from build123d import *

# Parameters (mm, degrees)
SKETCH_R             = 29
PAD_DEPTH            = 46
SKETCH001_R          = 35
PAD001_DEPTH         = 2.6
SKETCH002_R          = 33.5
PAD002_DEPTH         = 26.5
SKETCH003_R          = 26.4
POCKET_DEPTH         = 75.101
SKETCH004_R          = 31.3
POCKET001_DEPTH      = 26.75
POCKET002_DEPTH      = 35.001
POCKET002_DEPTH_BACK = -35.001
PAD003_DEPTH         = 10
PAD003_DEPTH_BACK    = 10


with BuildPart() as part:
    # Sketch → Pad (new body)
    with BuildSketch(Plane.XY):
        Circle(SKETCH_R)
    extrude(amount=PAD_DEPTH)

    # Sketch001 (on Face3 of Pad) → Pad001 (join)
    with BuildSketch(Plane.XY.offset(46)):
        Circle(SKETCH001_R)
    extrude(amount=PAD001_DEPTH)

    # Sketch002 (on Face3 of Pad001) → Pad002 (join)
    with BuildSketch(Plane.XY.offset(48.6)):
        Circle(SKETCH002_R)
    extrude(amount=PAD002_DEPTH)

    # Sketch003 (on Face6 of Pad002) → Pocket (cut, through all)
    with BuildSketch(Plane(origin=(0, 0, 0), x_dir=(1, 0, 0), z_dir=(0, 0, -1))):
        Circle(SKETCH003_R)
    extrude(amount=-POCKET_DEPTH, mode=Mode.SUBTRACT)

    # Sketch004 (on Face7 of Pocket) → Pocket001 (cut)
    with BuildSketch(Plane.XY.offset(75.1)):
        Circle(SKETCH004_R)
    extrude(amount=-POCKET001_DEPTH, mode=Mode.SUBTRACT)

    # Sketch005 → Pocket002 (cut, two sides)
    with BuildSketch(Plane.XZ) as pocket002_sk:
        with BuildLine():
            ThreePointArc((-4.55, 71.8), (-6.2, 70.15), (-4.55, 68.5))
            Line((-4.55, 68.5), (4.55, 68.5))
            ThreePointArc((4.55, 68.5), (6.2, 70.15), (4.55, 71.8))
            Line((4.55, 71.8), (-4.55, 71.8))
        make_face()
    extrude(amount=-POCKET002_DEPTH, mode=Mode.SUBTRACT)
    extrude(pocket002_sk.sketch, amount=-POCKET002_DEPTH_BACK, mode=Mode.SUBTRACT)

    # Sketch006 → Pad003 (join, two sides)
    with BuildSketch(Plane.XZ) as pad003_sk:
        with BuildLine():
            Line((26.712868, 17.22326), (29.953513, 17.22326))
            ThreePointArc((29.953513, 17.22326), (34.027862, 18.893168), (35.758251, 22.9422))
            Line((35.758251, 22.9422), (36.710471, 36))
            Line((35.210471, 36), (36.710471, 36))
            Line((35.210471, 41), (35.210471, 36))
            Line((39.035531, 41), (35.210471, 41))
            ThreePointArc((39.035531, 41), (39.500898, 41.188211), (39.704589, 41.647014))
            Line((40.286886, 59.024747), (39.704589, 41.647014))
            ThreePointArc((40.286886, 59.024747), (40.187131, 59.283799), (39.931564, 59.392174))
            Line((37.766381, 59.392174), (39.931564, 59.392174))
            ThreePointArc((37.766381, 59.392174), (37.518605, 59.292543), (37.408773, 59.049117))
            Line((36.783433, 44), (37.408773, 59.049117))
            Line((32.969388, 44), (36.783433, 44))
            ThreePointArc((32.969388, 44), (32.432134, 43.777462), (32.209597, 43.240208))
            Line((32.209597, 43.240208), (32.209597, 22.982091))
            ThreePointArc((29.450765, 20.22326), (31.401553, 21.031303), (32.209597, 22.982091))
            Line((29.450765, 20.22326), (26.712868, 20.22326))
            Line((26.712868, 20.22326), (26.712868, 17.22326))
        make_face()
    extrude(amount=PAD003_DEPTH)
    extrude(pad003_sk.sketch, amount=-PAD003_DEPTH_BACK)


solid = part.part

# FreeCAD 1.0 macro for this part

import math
import FreeCAD as App
import Part
import Sketcher
from FreeCAD import Vector

doc = App.newDocument("Part")
body = doc.addObject("PartDesign::Body", "Body")

sketch1 = body.newObject("Sketcher::SketchObject", "Sketch")
sketch1.AttachmentSupport = (doc.getObject("XY_Plane"), [""])
sketch1.MapMode = "FlatFace"
sketch1.addGeometry(Part.Circle(Vector(0, 0, 0), Vector(0, 0, 1), 29), False)
sketch1.addConstraint([
    Sketcher.Constraint("Coincident", 0, 3, -1, 1),
    Sketcher.Constraint("Diameter", 0, 58.0),
])
pad1 = body.newObject("PartDesign::Pad", "Pad")
pad1.Profile = sketch1
pad1.Length = 46

sketch2 = body.newObject("Sketcher::SketchObject", "Sketch001")
sketch2.AttachmentSupport = (doc.getObject("XY_Plane"), [""])
sketch2.MapMode = "FlatFace"
sketch2.AttachmentOffset = App.Placement(Vector(0, 0, 46), App.Rotation())
sketch2.addGeometry(Part.Circle(Vector(0, 0, 0), Vector(0, 0, 1), 35), False)
sketch2.addConstraint([
    Sketcher.Constraint("Coincident", 0, 3, -1, 1),
    Sketcher.Constraint("Diameter", 0, 70.0),
])
pad2 = body.newObject("PartDesign::Pad", "Pad001")
pad2.Profile = sketch2
pad2.Length = 2.6

sketch3 = body.newObject("Sketcher::SketchObject", "Sketch002")
sketch3.AttachmentSupport = (doc.getObject("XY_Plane"), [""])
sketch3.MapMode = "FlatFace"
sketch3.AttachmentOffset = App.Placement(Vector(0, 0, 48.6), App.Rotation())
sketch3.addGeometry(Part.Circle(Vector(0, 0, 0), Vector(0, 0, 1), 33.5), False)
sketch3.addConstraint([
    Sketcher.Constraint("Coincident", 0, 3, -1, 1),
    Sketcher.Constraint("Diameter", 0, 67.0),
])
pad3 = body.newObject("PartDesign::Pad", "Pad002")
pad3.Profile = sketch3
pad3.Length = 26.5

sketch4 = body.newObject("Sketcher::SketchObject", "Sketch003")
sketch4.AttachmentSupport = (doc.getObject("XY_Plane"), [""])
sketch4.MapMode = "FlatFace"
sketch4.addGeometry(Part.Circle(Vector(0, 0, 0), Vector(0, 0, 1), 26.4), False)
sketch4.addConstraint([
    Sketcher.Constraint("Coincident", 0, 3, -1, 1),
    Sketcher.Constraint("Diameter", 0, 52.8),
])
pocket1 = body.newObject("PartDesign::Pocket", "Pocket")
pocket1.Profile = sketch4
pocket1.Type = "ThroughAll"
pocket1.Reversed = True

sketch5 = body.newObject("Sketcher::SketchObject", "Sketch004")
sketch5.AttachmentSupport = (doc.getObject("XY_Plane"), [""])
sketch5.MapMode = "FlatFace"
sketch5.AttachmentOffset = App.Placement(Vector(0, 0, 75.1), App.Rotation())
sketch5.addGeometry(Part.Circle(Vector(0, 0, 0), Vector(0, 0, 1), 31.3), False)
sketch5.addConstraint([
    Sketcher.Constraint("Coincident", 0, 3, -1, 1),
    Sketcher.Constraint("Diameter", 0, 62.6),
])
pocket2 = body.newObject("PartDesign::Pocket", "Pocket001")
pocket2.Profile = sketch5
pocket2.Length = 26.75

sketch6 = body.newObject("Sketcher::SketchObject", "Sketch005")
sketch6.AttachmentSupport = (doc.getObject("XZ_Plane"), [""])
sketch6.MapMode = "FlatFace"
sketch6.addGeometry([
    Part.ArcOfCircle(Part.Circle(Vector(-4.55, 70.15, 0), Vector(0, 0, 1), 1.65), math.radians(90), math.radians(270)),
    Part.LineSegment(Vector(-4.55, 68.5, 0), Vector(4.55, 68.5, 0)),
    Part.ArcOfCircle(Part.Circle(Vector(4.55, 70.15, 0), Vector(0, 0, 1), 1.65), math.radians(-90), math.radians(90)),
    Part.LineSegment(Vector(4.55, 71.8, 0), Vector(-4.55, 71.8, 0)),
], False)
sketch6.addConstraint([
    Sketcher.Constraint("Tangent", 0, 2, 1, 1),
    Sketcher.Constraint("Tangent", 1, 2, 2, 1),
    Sketcher.Constraint("Tangent", 2, 2, 3, 1),
    Sketcher.Constraint("Tangent", 3, 2, 0, 1),
    Sketcher.Constraint("Horizontal", 1),
    Sketcher.Constraint("Horizontal", 3),
    Sketcher.Constraint("Radius", 0, 1.65),
    Sketcher.Constraint("DistanceX", 1, 1, 1, 2, 9.1),
    Sketcher.Constraint("DistanceY", -1, 1, 0, 2, 68.5),
    Sketcher.Constraint("DistanceX", 0, 3, -1, 1, 4.55),
])
pocket3 = body.newObject("PartDesign::Pocket", "Pocket002")
pocket3.Profile = sketch6
pocket3.Type = "ThroughAll"
pocket3.Midplane = True

sketch7 = body.newObject("Sketcher::SketchObject", "Sketch006")
sketch7.AttachmentSupport = (doc.getObject("XZ_Plane"), [""])
sketch7.MapMode = "FlatFace"
sketch7.addGeometry([
    Part.LineSegment(Vector(26.712868, 17.22326, 0), Vector(29.953513, 17.22326, 0)),
    Part.ArcOfCircle(Part.Circle(Vector(29.953514, 23.02864, 0), Vector(0, 0, 1), 5.80538), math.radians(-90.000013), math.radians(-0.853148)),
    Part.LineSegment(Vector(35.758251, 22.9422, 0), Vector(36.710471, 36, 0)),
    Part.LineSegment(Vector(36.710471, 36, 0), Vector(35.210471, 36, 0)),
    Part.LineSegment(Vector(35.210471, 36, 0), Vector(35.210471, 41, 0)),
    Part.LineSegment(Vector(35.210471, 41, 0), Vector(39.035531, 41, 0)),
    Part.ArcOfCircle(Part.Circle(Vector(39.035532, 41.669433, 0), Vector(0, 0, 1), 0.669433), math.radians(-90.00005), math.radians(-1.919161)),
    Part.LineSegment(Vector(39.704589, 41.647014, 0), Vector(40.286886, 59.024747, 0)),
    Part.ArcOfCircle(Part.Circle(Vector(39.931565, 59.036654, 0), Vector(0, 0, 1), 0.35552), math.radians(-1.91926), math.radians(90.000197)),
    Part.LineSegment(Vector(39.931564, 59.392174, 0), Vector(37.766381, 59.392174, 0)),
    Part.ArcOfCircle(Part.Circle(Vector(37.766381, 59.034258, 0), Vector(0, 0, 1), 0.357916), math.radians(89.999941), math.radians(177.62063)),
    Part.LineSegment(Vector(37.408773, 59.049117, 0), Vector(36.783433, 44, 0)),
    Part.LineSegment(Vector(36.783433, 44, 0), Vector(32.969388, 44, 0)),
    Part.ArcOfCircle(Part.Circle(Vector(32.969388, 43.240209, 0), Vector(0, 0, 1), 0.759791), math.radians(89.999966), math.radians(180.000109)),
    Part.LineSegment(Vector(32.209597, 43.240208, 0), Vector(32.209597, 22.982091, 0)),
    Part.ArcOfCircle(Part.Circle(Vector(29.450764, 22.982093, 0), Vector(0, 0, 1), 2.758833), math.radians(-89.999978), math.radians(-0.000043)),
    Part.LineSegment(Vector(29.450765, 20.22326, 0), Vector(26.712868, 20.22326, 0)),
    Part.LineSegment(Vector(26.712868, 20.22326, 0), Vector(26.712868, 17.22326, 0)),
], False)
sketch7.addConstraint([
    Sketcher.Constraint("Tangent", 0, 2, 1, 1),
    Sketcher.Constraint("Coincident", 1, 2, 2, 1),
    Sketcher.Constraint("Coincident", 2, 2, 3, 1),
    Sketcher.Constraint("Coincident", 3, 2, 4, 1),
    Sketcher.Constraint("Coincident", 4, 2, 5, 1),
    Sketcher.Constraint("Tangent", 5, 2, 6, 1),
    Sketcher.Constraint("Tangent", 6, 2, 7, 1),
    Sketcher.Constraint("Tangent", 7, 2, 8, 1),
    Sketcher.Constraint("Coincident", 8, 2, 9, 1),
    Sketcher.Constraint("Tangent", 9, 2, 10, 1),
    Sketcher.Constraint("Tangent", 10, 2, 11, 1),
    Sketcher.Constraint("Coincident", 11, 2, 12, 1),
    Sketcher.Constraint("Tangent", 12, 2, 13, 1),
    Sketcher.Constraint("Tangent", 13, 2, 14, 1),
    Sketcher.Constraint("Tangent", 14, 2, 15, 2),
    Sketcher.Constraint("Tangent", 15, 1, 16, 1),
    Sketcher.Constraint("Coincident", 16, 2, 17, 1),
    Sketcher.Constraint("Coincident", 17, 2, 0, 1),
    Sketcher.Constraint("Horizontal", 0),
    Sketcher.Constraint("Horizontal", 3),
    Sketcher.Constraint("Vertical", 4),
    Sketcher.Constraint("Horizontal", 5),
    Sketcher.Constraint("Horizontal", 9),
    Sketcher.Constraint("Horizontal", 12),
    Sketcher.Constraint("Vertical", 14),
    Sketcher.Constraint("Horizontal", 16),
    Sketcher.Constraint("Vertical", 17),
    Sketcher.Constraint("DistanceY", 4, 1, 4, 2, 5.0),
    Sketcher.Constraint("DistanceY", 17, 2, 17, 1, 3.0),
    Sketcher.Constraint("DistanceX", 3, 2, 3, 1, 1.5),
    Sketcher.Constraint("DistanceY", -1, 1, 2, 2, 36.0),
    Sketcher.Constraint("DistanceY", -1, 1, 11, 2, 44.0),
    Sketcher.Constraint("Radius", 1, 5.80538),
    Sketcher.Constraint("Radius", 8, 0.35552),
    Sketcher.Constraint("Radius", 13, 0.759791),
    Sketcher.Constraint("Radius", 6, 0.669433),
    Sketcher.Constraint("Radius", 10, 0.357916),
    Sketcher.Constraint("Radius", 15, 2.758833),
    Sketcher.Constraint("DistanceX", 5, 1, 5, 2, 3.82506),
    Sketcher.Constraint("DistanceY", -1, 1, 1, 2, 22.9422),
    Sketcher.Constraint("DistanceX", 15, 3, 8, 3, 10.480801),
    Sketcher.Constraint("DistanceX", 13, 3, 6, 2, 6.735201),
    Sketcher.Constraint("DistanceX", 11, 2, 6, 3, 2.252099),
    Sketcher.Constraint("DistanceX", 0, 1, 0, 2, 3.240645),
    Sketcher.Constraint("DistanceX", 9, 2, 9, 1, 2.165183),
    Sketcher.Constraint("DistanceX", 16, 2, 16, 1, 2.737897),
    Sketcher.Constraint("DistanceY", 14, 2, 14, 1, 20.258117),
    Sketcher.Constraint("DistanceX", -1, 1, 6, 3, 39.035532),
    Sketcher.Constraint("DistanceX", -1, 1, 10, 3, 37.766381),
    Sketcher.Constraint("DistanceY", 6, 3, 8, 3, 17.367221),
])
pad4 = body.newObject("PartDesign::Pad", "Pad003")
pad4.Profile = sketch7
pad4.Type = "TwoLengths"
pad4.Length = 10
pad4.Length2 = 10

doc.recompute()
